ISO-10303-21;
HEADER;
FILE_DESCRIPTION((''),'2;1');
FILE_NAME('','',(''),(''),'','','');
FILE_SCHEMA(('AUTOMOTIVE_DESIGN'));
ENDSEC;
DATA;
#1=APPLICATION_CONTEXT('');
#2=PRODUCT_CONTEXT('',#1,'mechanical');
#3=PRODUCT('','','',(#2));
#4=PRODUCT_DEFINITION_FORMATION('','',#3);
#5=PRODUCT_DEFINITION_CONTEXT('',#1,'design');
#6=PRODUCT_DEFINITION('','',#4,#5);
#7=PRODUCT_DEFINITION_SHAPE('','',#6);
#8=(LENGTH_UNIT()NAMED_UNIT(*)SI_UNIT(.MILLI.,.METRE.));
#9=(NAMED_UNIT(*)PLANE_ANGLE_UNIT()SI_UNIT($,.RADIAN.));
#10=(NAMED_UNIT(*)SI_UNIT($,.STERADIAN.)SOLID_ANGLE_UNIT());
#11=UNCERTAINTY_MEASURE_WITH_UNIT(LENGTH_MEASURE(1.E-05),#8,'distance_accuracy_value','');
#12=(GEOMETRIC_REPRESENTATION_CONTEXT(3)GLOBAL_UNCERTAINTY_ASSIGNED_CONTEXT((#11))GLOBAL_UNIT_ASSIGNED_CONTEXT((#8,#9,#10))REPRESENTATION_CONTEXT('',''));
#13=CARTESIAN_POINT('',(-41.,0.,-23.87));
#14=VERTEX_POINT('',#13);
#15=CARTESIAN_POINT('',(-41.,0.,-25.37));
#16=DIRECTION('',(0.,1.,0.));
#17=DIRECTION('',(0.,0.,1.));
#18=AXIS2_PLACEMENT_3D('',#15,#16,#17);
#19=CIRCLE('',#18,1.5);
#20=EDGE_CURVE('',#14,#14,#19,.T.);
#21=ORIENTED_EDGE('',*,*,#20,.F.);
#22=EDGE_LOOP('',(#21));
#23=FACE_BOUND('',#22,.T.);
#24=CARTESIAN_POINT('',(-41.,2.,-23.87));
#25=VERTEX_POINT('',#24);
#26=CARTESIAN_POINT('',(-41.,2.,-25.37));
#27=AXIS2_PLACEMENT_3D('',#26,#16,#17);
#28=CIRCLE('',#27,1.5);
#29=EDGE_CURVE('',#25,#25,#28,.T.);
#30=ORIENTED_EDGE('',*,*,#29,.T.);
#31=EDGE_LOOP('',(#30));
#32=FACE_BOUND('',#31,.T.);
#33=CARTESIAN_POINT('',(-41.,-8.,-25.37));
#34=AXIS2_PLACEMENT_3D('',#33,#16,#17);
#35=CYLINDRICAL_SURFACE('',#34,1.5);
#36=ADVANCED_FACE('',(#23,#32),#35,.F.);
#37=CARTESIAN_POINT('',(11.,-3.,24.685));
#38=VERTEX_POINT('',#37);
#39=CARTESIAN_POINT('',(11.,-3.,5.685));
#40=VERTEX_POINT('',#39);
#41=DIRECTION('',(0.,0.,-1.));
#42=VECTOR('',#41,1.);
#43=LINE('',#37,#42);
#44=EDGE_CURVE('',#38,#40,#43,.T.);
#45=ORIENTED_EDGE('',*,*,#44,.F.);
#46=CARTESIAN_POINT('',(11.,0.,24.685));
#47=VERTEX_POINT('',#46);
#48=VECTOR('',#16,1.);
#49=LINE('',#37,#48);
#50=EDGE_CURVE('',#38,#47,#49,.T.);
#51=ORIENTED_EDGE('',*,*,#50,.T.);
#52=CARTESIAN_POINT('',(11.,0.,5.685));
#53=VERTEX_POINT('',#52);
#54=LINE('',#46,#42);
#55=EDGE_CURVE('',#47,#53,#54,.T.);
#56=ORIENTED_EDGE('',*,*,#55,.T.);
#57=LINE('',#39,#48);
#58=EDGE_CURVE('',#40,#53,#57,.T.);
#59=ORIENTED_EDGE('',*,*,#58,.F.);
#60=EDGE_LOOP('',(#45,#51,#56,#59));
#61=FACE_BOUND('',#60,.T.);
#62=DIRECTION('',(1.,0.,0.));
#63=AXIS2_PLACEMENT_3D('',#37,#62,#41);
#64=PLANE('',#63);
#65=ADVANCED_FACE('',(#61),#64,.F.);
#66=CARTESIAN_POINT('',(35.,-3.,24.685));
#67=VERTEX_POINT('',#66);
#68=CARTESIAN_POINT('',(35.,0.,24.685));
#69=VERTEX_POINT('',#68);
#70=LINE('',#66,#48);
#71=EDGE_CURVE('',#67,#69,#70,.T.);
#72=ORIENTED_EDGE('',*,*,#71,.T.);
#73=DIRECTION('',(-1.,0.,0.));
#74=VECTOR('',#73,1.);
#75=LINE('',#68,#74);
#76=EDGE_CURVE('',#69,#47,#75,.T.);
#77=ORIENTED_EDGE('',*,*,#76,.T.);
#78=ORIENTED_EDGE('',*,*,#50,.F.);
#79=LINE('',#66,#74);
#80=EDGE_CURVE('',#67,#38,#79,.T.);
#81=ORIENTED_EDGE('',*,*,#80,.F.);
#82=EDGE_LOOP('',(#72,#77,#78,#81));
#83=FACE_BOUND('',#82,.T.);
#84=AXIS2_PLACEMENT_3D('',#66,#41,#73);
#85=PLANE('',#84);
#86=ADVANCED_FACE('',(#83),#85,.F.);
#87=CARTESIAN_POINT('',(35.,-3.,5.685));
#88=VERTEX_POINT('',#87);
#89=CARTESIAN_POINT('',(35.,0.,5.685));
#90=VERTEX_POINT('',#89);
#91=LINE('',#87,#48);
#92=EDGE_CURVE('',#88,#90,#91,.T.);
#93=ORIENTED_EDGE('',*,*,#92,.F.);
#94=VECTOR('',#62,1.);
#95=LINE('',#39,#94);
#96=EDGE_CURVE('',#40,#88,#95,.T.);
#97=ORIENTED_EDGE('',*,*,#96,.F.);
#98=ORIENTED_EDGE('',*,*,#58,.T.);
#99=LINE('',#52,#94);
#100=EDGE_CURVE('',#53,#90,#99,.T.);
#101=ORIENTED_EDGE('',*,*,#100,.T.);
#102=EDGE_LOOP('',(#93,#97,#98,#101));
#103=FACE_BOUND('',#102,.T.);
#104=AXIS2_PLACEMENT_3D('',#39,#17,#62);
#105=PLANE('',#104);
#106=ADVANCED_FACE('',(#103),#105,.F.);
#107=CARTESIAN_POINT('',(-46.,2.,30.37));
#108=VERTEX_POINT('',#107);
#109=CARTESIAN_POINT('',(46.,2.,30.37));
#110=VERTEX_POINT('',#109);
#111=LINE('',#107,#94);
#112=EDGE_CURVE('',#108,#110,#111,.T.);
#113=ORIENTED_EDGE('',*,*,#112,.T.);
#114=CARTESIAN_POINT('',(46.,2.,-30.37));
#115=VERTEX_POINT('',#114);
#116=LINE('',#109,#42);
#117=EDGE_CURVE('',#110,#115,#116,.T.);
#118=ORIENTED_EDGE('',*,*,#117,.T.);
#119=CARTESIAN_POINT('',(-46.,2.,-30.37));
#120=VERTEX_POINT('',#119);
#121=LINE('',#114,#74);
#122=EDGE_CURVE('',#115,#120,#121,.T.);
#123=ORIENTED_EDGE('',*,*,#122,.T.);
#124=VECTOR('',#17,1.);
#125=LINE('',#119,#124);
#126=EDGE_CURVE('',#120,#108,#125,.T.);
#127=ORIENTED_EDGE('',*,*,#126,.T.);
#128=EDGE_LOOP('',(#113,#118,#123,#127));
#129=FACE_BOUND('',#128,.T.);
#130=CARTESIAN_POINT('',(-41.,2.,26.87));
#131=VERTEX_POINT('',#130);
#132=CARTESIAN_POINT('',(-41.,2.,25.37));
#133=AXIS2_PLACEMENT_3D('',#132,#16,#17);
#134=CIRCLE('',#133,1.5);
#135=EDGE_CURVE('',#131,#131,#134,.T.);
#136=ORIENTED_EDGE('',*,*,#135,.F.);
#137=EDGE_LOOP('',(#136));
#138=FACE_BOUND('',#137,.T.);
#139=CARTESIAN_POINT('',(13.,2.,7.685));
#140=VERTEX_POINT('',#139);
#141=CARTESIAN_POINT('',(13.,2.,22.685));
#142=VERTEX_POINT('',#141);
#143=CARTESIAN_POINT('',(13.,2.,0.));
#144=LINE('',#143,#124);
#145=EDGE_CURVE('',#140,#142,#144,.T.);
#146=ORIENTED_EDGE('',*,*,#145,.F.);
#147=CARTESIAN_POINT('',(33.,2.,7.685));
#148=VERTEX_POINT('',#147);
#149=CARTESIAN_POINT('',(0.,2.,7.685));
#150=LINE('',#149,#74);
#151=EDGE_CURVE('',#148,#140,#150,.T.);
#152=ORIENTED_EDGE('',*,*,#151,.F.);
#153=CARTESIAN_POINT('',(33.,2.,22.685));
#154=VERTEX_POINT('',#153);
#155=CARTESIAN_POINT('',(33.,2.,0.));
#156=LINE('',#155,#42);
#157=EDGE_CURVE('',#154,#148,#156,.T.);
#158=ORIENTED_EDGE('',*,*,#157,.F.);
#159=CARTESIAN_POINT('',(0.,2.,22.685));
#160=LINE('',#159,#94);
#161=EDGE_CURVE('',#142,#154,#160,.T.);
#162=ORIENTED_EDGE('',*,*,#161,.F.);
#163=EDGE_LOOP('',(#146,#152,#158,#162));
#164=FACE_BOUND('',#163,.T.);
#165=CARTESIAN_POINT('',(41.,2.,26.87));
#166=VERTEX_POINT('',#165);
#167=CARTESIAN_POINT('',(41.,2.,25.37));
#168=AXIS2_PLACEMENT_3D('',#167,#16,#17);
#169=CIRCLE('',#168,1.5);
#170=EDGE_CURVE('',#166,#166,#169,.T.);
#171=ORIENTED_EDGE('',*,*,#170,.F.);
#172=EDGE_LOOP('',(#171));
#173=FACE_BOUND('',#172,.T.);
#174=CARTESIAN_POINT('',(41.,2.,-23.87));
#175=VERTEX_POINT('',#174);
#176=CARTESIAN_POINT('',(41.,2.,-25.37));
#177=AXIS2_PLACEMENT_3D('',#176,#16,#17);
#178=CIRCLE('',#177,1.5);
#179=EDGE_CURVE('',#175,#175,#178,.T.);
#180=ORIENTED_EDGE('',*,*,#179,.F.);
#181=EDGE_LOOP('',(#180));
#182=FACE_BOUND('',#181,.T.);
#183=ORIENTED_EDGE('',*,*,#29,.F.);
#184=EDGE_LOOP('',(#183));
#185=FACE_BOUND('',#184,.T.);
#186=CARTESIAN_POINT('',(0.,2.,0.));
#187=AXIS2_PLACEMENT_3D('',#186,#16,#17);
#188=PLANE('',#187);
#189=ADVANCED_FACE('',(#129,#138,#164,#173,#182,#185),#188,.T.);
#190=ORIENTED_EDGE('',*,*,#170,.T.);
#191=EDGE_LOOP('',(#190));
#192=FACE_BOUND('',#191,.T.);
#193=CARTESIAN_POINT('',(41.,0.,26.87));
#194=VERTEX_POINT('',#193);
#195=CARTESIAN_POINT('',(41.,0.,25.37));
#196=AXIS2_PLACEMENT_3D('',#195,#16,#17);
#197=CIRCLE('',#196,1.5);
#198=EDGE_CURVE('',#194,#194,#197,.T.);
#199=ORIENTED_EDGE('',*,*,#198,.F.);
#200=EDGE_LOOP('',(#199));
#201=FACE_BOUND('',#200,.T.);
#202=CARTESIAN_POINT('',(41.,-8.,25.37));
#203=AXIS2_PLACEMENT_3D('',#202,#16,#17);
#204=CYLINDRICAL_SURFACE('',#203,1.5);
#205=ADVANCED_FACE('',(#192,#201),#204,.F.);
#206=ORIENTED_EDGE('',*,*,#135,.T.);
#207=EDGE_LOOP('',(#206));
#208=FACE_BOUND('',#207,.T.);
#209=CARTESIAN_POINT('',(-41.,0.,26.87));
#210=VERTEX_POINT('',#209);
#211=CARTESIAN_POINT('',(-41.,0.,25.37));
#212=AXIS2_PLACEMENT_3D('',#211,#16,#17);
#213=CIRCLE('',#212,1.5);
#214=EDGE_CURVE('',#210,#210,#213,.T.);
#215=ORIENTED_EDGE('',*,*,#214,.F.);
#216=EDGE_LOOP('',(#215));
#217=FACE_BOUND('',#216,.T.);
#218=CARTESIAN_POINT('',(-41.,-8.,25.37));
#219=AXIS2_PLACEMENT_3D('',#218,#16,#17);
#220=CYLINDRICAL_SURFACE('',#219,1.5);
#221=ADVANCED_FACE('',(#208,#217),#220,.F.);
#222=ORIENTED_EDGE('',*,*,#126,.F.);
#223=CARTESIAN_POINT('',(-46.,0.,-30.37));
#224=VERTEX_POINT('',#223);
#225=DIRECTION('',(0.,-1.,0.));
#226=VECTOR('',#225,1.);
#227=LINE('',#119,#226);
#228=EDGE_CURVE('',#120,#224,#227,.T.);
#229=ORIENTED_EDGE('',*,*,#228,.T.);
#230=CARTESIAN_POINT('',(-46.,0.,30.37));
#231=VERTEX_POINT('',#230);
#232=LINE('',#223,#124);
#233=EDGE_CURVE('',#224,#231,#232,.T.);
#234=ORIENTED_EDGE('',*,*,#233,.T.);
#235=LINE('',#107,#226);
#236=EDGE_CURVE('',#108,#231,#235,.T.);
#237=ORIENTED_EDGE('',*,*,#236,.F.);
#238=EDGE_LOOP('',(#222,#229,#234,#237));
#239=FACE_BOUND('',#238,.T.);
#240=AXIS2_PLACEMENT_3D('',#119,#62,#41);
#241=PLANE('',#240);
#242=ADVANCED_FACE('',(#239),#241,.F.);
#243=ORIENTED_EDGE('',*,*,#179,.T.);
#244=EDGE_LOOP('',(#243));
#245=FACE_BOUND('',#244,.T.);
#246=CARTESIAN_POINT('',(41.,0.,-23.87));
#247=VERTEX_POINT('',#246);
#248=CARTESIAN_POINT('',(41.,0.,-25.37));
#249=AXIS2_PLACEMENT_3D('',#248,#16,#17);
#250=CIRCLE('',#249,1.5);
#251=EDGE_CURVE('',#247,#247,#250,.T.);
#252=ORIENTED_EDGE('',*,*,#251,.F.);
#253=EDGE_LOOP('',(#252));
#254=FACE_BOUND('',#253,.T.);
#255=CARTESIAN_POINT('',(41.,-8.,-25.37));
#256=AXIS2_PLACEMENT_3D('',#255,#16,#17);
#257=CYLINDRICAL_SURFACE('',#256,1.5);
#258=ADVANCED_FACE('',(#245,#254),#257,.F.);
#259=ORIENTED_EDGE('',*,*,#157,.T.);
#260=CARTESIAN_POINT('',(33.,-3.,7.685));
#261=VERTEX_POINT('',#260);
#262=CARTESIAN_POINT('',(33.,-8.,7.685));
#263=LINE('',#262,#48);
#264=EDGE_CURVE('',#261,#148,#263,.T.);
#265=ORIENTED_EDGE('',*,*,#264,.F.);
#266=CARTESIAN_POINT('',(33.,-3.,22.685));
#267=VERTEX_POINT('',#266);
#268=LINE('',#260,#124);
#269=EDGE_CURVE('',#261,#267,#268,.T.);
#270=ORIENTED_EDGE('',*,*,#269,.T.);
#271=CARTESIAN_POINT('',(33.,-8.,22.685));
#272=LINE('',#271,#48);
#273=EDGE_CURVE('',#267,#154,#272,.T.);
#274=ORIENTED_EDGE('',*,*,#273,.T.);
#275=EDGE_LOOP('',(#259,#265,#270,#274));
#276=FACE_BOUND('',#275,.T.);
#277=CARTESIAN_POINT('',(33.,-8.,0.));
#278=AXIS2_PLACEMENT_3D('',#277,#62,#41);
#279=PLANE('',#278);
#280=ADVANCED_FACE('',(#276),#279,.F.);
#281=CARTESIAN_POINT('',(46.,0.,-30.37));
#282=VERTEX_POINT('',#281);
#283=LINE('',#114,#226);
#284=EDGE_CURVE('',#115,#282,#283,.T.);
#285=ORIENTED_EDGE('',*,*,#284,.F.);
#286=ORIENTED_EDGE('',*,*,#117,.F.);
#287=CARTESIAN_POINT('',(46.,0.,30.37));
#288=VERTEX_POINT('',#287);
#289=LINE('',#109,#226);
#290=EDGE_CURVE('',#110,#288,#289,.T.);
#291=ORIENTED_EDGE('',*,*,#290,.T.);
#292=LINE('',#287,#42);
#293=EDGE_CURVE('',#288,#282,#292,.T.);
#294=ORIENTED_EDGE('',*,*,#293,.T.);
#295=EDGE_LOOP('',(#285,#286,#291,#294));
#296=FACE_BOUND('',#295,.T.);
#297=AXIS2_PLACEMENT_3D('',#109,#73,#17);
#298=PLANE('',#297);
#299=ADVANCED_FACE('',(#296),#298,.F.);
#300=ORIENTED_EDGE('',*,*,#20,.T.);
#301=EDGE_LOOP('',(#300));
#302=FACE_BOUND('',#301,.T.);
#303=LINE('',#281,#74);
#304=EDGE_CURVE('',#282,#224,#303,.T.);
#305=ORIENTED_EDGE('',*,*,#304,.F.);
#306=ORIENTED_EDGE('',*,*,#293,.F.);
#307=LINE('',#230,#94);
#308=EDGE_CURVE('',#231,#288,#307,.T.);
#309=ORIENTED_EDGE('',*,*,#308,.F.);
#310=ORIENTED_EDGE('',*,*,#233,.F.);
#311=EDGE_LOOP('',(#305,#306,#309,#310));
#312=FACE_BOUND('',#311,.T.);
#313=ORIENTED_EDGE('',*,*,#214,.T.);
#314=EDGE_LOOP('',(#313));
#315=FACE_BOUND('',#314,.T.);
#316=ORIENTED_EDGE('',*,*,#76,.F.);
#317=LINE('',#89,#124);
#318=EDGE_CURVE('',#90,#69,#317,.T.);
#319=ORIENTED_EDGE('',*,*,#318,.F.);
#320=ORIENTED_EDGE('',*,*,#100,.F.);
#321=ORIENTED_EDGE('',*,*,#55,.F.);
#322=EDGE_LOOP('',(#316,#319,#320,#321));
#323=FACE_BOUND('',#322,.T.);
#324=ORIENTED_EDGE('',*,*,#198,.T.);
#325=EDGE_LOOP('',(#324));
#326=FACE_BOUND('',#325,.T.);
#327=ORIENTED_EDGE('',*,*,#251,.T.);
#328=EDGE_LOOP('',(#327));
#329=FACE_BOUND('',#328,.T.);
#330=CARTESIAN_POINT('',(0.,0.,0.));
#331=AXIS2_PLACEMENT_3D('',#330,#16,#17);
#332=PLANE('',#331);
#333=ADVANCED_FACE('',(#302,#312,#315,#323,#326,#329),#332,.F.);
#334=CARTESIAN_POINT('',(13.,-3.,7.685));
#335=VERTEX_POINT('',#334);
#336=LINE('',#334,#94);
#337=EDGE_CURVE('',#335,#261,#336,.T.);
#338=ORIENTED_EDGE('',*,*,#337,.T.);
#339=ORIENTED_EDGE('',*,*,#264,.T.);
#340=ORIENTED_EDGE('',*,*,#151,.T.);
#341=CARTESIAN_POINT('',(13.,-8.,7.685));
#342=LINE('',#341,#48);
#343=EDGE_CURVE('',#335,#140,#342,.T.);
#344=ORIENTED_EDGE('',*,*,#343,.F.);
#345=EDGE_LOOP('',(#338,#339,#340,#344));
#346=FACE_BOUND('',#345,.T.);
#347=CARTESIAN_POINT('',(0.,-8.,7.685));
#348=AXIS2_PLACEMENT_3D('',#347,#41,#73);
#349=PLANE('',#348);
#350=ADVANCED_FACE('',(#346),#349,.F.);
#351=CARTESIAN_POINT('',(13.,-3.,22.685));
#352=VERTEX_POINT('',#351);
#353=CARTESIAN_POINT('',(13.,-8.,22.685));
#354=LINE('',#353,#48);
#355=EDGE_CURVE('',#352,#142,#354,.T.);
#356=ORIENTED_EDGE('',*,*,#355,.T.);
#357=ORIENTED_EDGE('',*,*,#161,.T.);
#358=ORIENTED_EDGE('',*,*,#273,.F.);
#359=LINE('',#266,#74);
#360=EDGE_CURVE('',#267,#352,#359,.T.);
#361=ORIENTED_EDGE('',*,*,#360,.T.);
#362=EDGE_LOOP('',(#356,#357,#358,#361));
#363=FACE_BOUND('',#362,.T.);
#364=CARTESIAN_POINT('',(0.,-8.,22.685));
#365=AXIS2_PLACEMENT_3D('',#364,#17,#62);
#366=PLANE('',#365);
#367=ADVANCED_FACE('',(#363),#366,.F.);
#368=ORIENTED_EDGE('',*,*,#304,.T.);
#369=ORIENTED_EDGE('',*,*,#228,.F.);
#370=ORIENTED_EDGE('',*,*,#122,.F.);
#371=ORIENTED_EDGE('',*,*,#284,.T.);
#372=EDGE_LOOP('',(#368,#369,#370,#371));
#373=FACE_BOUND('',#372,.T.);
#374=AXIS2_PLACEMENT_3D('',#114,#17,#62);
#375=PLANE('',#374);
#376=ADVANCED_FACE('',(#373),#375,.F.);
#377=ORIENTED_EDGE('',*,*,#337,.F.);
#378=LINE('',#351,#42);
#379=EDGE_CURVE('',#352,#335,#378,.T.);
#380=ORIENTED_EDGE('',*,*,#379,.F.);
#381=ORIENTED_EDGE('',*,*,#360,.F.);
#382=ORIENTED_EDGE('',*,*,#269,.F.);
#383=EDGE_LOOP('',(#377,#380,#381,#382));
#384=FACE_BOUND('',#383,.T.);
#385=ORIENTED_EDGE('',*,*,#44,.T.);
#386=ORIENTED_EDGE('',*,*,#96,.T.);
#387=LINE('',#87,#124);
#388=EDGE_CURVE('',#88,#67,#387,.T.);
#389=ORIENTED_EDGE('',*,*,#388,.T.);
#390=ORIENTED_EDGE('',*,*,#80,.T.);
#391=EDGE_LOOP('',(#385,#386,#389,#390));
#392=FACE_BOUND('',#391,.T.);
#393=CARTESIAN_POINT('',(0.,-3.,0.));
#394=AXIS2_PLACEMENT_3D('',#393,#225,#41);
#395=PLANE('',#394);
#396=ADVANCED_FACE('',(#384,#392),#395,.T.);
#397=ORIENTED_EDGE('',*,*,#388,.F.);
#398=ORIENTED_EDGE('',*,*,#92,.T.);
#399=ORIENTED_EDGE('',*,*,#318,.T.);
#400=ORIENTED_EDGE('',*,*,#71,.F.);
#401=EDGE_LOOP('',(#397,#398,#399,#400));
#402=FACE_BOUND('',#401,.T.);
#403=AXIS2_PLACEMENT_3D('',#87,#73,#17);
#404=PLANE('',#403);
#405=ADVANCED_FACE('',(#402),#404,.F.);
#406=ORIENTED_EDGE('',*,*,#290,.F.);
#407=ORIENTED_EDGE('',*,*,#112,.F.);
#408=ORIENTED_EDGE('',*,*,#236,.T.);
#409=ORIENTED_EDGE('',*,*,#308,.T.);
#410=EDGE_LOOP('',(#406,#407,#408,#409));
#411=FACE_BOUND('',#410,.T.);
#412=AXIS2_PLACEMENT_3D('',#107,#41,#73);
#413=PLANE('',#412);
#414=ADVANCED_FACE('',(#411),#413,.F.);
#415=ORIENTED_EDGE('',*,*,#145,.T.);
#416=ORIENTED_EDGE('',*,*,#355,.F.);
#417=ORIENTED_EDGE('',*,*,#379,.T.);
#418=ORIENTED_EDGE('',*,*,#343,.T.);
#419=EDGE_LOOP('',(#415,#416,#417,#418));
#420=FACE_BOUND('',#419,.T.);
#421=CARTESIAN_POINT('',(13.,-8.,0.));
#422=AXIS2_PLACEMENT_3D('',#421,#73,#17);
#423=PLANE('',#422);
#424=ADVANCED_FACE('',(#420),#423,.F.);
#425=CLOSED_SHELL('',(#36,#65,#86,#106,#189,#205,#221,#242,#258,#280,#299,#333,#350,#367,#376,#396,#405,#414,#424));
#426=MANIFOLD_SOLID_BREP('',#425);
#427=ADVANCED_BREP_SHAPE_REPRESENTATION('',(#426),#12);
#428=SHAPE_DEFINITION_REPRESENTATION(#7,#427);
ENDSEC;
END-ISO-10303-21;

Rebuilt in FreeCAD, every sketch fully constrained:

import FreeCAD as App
import Part
import Sketcher
from FreeCAD import Vector
Q = App.Units.Quantity

doc = App.newDocument("Part")
body = doc.addObject("PartDesign::Body", "Body")

sketch1 = body.newObject("Sketcher::SketchObject", "Sketch")
sketch1.AttachmentSupport = (doc.getObject("XZ_Plane"), [""])
sketch1.MapMode = "FlatFace"
sketch1.addGeometry([
    Part.LineSegment(Vector(-46, -30, 0), Vector(-46, 30, 0)),
    Part.LineSegment(Vector(-46, 30, 0), Vector(46, 30, 0)),
    Part.LineSegment(Vector(46, 30, 0), Vector(46, -30, 0)),
    Part.LineSegment(Vector(46, -30, 0), Vector(-46, -30, 0)),
], False)
sketch1.addConstraint([
    Sketcher.Constraint("Coincident", 0, 2, 1, 1),
    Sketcher.Constraint("Coincident", 1, 2, 2, 1),
    Sketcher.Constraint("Coincident", 2, 2, 3, 1),
    Sketcher.Constraint("Coincident", 3, 2, 0, 1),
    Sketcher.Constraint("Vertical", 0),
    Sketcher.Constraint("Horizontal", 1),
    Sketcher.Constraint("Vertical", 2),
    Sketcher.Constraint("Horizontal", 3),
    Sketcher.Constraint("Symmetric", 0, 2, 2, 2, -1, 1),
    Sketcher.Constraint("DistanceX", 1, 1, 1, 2, Q("92 mm")),
    Sketcher.Constraint("DistanceY", 0, 1, 0, 2, Q("60.74 mm")),
])
pad1 = body.newObject("PartDesign::Pad", "Pad")
pad1.Profile = sketch1
pad1.Length = 2
pad1.Reversed = True

sketch2 = body.newObject("Sketcher::SketchObject", "Sketch001")
sketch2.AttachmentSupport = (doc.getObject("XZ_Plane"), [""])
sketch2.MapMode = "FlatFace"
sketch2.AttachmentOffset = App.Placement(Vector(0, 0, -2), App.Rotation())
sketch2.addGeometry([
    Part.Circle(Vector(-41, -25.4, 0), Vector(0, 0, 1), 1.5),
    Part.Circle(Vector(41, -25.4, 0), Vector(0, 0, 1), 1.5),
    Part.Circle(Vector(41, 25.4, 0), Vector(0, 0, 1), 1.5),
    Part.Circle(Vector(-41, 25.4, 0), Vector(0, 0, 1), 1.5),
], False)
sketch2.addConstraint([
    Sketcher.Constraint("Equal", 0, 1),
    Sketcher.Constraint("Equal", 1, 2),
    Sketcher.Constraint("Equal", 2, 3),
    Sketcher.Constraint("Symmetric", 0, 3, 2, 3, -1, 1),
    Sketcher.Constraint("Symmetric", 1, 3, 3, 3, -1, 1),
    Sketcher.Constraint("Symmetric", 0, 3, 1, 3, -2),
    Sketcher.Constraint("Diameter", 0, Q("3 mm")),
    Sketcher.Constraint("DistanceX", 0, 3, -1, 1, Q("41 mm")),
    Sketcher.Constraint("DistanceY", 0, 3, -1, 1, Q("25.37 mm")),
])
pocket1 = body.newObject("PartDesign::Pocket", "Pocket")
pocket1.Profile = sketch2
pocket1.Length = 10
pocket1.Reversed = True

sketch3 = body.newObject("Sketcher::SketchObject", "Sketch002")
sketch3.AttachmentSupport = (doc.getObject("XZ_Plane"), [""])
sketch3.MapMode = "FlatFace"
sketch3.AttachmentOffset = App.Placement(Vector(0, 0, -2), App.Rotation())
sketch3.addGeometry([
    Part.LineSegment(Vector(13, 8, 0), Vector(13, 23, 0)),
    Part.LineSegment(Vector(13, 23, 0), Vector(33, 23, 0)),
    Part.LineSegment(Vector(33, 23, 0), Vector(33, 8, 0)),
    Part.LineSegment(Vector(33, 8, 0), Vector(13, 8, 0)),
], False)
sketch3.addConstraint([
    Sketcher.Constraint("Coincident", 0, 2, 1, 1),
    Sketcher.Constraint("Coincident", 1, 2, 2, 1),
    Sketcher.Constraint("Coincident", 2, 2, 3, 1),
    Sketcher.Constraint("Coincident", 3, 2, 0, 1),
    Sketcher.Constraint("Vertical", 0),
    Sketcher.Constraint("Horizontal", 1),
    Sketcher.Constraint("Vertical", 2),
    Sketcher.Constraint("Horizontal", 3),
    Sketcher.Constraint("DistanceX", 1, 1, 1, 2, Q("20 mm")),
    Sketcher.Constraint("DistanceY", 0, 1, 0, 2, Q("15 mm")),
    Sketcher.Constraint("DistanceX", -1, 1, 0, 2, Q("13 mm")),
    Sketcher.Constraint("DistanceY", -1, 1, 0, 2, Q("22.685 mm")),
])
pocket2 = body.newObject("PartDesign::Pocket", "Pocket001")
pocket2.Profile = sketch3
pocket2.Length = 10
pocket2.Reversed = True

sketch4 = body.newObject("Sketcher::SketchObject", "Sketch003")
sketch4.AttachmentSupport = (doc.getObject("XZ_Plane"), [""])
sketch4.MapMode = "FlatFace"
sketch4.addGeometry([
    Part.LineSegment(Vector(11, 25, 0), Vector(11, 6, 0)),
    Part.LineSegment(Vector(11, 6, 0), Vector(35, 6, 0)),
    Part.LineSegment(Vector(35, 6, 0), Vector(35, 25, 0)),
    Part.LineSegment(Vector(35, 25, 0), Vector(11, 25, 0)),
    Part.LineSegment(Vector(33, 8, 0), Vector(13, 8, 0)),
    Part.LineSegment(Vector(13, 8, 0), Vector(13, 23, 0)),
    Part.LineSegment(Vector(13, 23, 0), Vector(33, 23, 0)),
    Part.LineSegment(Vector(33, 23, 0), Vector(33, 8, 0)),
], False)
sketch4.addConstraint([
    Sketcher.Constraint("Coincident", 0, 2, 1, 1),
    Sketcher.Constraint("Coincident", 1, 2, 2, 1),
    Sketcher.Constraint("Coincident", 2, 2, 3, 1),
    Sketcher.Constraint("Coincident", 3, 2, 0, 1),
    Sketcher.Constraint("Coincident", 4, 2, 5, 1),
    Sketcher.Constraint("Coincident", 5, 2, 6, 1),
    Sketcher.Constraint("Coincident", 6, 2, 7, 1),
    Sketcher.Constraint("Coincident", 7, 2, 4, 1),
    Sketcher.Constraint("Vertical", 0),
    Sketcher.Constraint("Horizontal", 1),
    Sketcher.Constraint("Vertical", 2),
    Sketcher.Constraint("Horizontal", 3),
    Sketcher.Constraint("Horizontal", 4),
    Sketcher.Constraint("Vertical", 5),
    Sketcher.Constraint("Horizontal", 6),
    Sketcher.Constraint("Vertical", 7),
    Sketcher.Constraint("DistanceX", 1, 1, 1, 2, Q("24 mm")),
    Sketcher.Constraint("DistanceX", 4, 2, 4, 1, Q("20 mm")),
    Sketcher.Constraint("DistanceY", 0, 2, 0, 1, Q("19 mm")),
    Sketcher.Constraint("DistanceY", 5, 1, 5, 2, Q("15 mm")),
    Sketcher.Constraint("DistanceX", -1, 1, 0, 2, Q("11 mm")),
    Sketcher.Constraint("DistanceX", -1, 1, 4, 2, Q("13 mm")),
    Sketcher.Constraint("DistanceY", 0, 2, 4, 2, Q("2 mm")),
    Sketcher.Constraint("DistanceY", -1, 1, 0, 2, Q("5.685 mm")),
])
pad2 = body.newObject("PartDesign::Pad", "Pad001")
pad2.Profile = sketch4
pad2.Length = 3

doc.recompute()
